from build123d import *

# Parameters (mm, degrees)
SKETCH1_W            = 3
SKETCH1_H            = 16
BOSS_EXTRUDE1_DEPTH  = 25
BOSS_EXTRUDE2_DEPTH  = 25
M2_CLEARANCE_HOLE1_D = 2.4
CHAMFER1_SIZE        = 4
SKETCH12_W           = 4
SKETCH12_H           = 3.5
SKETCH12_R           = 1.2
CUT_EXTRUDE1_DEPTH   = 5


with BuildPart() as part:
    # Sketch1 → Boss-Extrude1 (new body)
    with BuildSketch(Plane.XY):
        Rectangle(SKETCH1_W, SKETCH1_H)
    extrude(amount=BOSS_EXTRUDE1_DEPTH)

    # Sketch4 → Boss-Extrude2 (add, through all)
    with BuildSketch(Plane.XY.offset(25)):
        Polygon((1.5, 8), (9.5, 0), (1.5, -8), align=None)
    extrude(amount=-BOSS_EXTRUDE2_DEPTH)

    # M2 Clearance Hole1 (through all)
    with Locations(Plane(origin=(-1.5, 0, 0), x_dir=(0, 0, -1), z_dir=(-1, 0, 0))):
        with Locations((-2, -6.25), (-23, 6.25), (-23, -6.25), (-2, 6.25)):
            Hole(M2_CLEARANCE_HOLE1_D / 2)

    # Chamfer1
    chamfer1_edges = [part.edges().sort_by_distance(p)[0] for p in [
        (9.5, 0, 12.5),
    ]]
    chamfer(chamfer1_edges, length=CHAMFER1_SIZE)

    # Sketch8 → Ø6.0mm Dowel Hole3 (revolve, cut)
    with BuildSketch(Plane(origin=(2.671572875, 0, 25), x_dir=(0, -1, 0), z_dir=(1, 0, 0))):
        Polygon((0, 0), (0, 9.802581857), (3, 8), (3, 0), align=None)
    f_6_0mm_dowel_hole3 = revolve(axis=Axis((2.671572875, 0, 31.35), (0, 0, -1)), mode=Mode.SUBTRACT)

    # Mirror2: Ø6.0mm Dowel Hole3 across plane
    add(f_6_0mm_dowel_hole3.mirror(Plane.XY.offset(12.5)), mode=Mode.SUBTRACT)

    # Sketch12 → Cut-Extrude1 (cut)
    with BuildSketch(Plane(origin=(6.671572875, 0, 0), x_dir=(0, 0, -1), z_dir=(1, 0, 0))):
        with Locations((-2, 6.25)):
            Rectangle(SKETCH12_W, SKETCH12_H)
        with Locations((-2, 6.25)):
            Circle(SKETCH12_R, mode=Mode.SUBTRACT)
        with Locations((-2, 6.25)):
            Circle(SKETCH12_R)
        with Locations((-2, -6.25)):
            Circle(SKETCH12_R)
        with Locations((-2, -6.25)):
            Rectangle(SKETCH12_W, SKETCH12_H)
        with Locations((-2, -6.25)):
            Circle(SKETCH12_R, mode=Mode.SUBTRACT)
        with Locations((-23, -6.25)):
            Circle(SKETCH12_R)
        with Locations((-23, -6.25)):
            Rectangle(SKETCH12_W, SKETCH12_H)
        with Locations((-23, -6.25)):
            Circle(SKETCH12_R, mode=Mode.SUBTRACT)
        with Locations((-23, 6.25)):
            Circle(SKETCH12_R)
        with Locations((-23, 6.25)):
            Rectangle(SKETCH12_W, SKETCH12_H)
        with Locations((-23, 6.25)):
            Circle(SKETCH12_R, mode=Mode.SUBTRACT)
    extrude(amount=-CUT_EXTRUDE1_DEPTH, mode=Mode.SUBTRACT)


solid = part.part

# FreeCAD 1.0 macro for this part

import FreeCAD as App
import Part
import Sketcher

V = App.Vector
Q = App.Units.Quantity


def edges_at(feature, points):
    """Names of the edges that pass closest to the given points."""
    edges = feature.Shape.Edges
    near = lambda p: min(range(len(edges)), key=lambda i: edges[i].distToShape(Part.Vertex(*p))[0])
    return sorted({f"Edge{near(p) + 1}" for p in points})

doc = App.newDocument("Part")
body = doc.addObject("PartDesign::Body", "Body")

sketch1 = body.newObject("Sketcher::SketchObject", "Sketch")
sketch1.AttachmentSupport = (doc.getObject("XY_Plane"), [""])
sketch1.MapMode = "FlatFace"
sketch1.addGeometry([
    Part.LineSegment(V(-1.5, 8, 0), V(-1.5, -8, 0)),
    Part.LineSegment(V(-1.5, -8, 0), V(1.5, -8, 0)),
    Part.LineSegment(V(1.5, -8, 0), V(1.5, 8, 0)),
    Part.LineSegment(V(1.5, 8, 0), V(-1.5, 8, 0)),
], False)
sketch1.addConstraint([
    Sketcher.Constraint("Coincident", 0, 2, 1, 1),
    Sketcher.Constraint("Coincident", 1, 2, 2, 1),
    Sketcher.Constraint("Coincident", 2, 2, 3, 1),
    Sketcher.Constraint("Coincident", 3, 2, 0, 1),
    Sketcher.Constraint("Vertical", 0),
    Sketcher.Constraint("Horizontal", 1),
    Sketcher.Constraint("Vertical", 2),
    Sketcher.Constraint("Horizontal", 3),
    Sketcher.Constraint("Symmetric", 0, 2, 2, 2, -1, 1),
    Sketcher.Constraint("DistanceX", 1, 1, 1, 2, Q("3 mm")),
    Sketcher.Constraint("DistanceY", 0, 2, 0, 1, Q("16 mm")),
])
pad1 = body.newObject("PartDesign::Pad", "Pad")
pad1.Profile = sketch1
pad1.Length = 25

sketch2 = body.newObject("Sketcher::SketchObject", "Sketch001")
sketch2.AttachmentSupport = (doc.getObject("XY_Plane"), [""])
sketch2.MapMode = "FlatFace"
sketch2.AttachmentOffset = App.Placement(V(0, 0, 25), App.Rotation())
sketch2.addGeometry([
    Part.LineSegment(V(10, 0, 0), V(2, 8, 0)),
    Part.LineSegment(V(2, 8, 0), V(2, -8, 0)),
    Part.LineSegment(V(2, -8, 0), V(10, 0, 0)),
], False)
sketch2.addConstraint([
    Sketcher.Constraint("Coincident", 0, 2, 1, 1),
    Sketcher.Constraint("Coincident", 1, 2, 2, 1),
    Sketcher.Constraint("Coincident", 2, 2, 0, 1),
    Sketcher.Constraint("Vertical", 1),
    Sketcher.Constraint("PointOnObject", 2, 2, -1),
    Sketcher.Constraint("Perpendicular", 0, 2),
    Sketcher.Constraint("Equal", 0, 2),
    Sketcher.Constraint("DistanceY", 1, 2, 1, 1, Q("16 mm")),
    Sketcher.Constraint("DistanceX", -1, 1, 0, 2, Q("1.5 mm")),
])
pad2 = body.newObject("PartDesign::Pad", "Pad001")
pad2.Profile = sketch2
pad2.Length = 25
pad2.Reversed = True

sketch3 = body.newObject("Sketcher::SketchObject", "Sketch002")
sketch3.AttachmentSupport = (doc.getObject("YZ_Plane"), [""])
sketch3.MapMode = "FlatFace"
sketch3.AttachmentOffset = App.Placement(V(0, 0, -1.5), App.Rotation())
sketch3.addGeometry([
    Part.Circle(V(6.2, 2, 0), V(0, 0, 1), 1.2),
    Part.Circle(V(-6.2, 23, 0), V(0, 0, 1), 1.2),
    Part.Circle(V(6.2, 23, 0), V(0, 0, 1), 1.2),
    Part.Circle(V(-6.2, 2, 0), V(0, 0, 1), 1.2),
], False)
sketch3.addConstraint([
    Sketcher.Constraint("Equal", 0, 1),
    Sketcher.Constraint("Equal", 1, 2),
    Sketcher.Constraint("Equal", 2, 3),
    Sketcher.Constraint("Symmetric", 1, 3, 2, 3, -2),
    Sketcher.Constraint("Symmetric", 0, 3, 3, 3, -2),
    Sketcher.Constraint("Vertical", 0, 3, 2, 3),
    Sketcher.Constraint("Diameter", 0, Q("2.4 mm")),
    Sketcher.Constraint("DistanceY", -1, 1, 0, 3, Q("2 mm")),
    Sketcher.Constraint("DistanceY", -1, 1, 1, 3, Q("23 mm")),
    Sketcher.Constraint("DistanceX", 1, 3, 0, 3, Q("12.5 mm")),
])
doc.recompute()
hole = body.newObject("PartDesign::Hole", "Hole")
hole.Profile = sketch3
hole.ThreadType = "None"
hole.Diameter = 2.4
hole.DepthType = "ThroughAll"
hole.Reversed = True
doc.recompute()

chamfer = body.newObject("PartDesign::Chamfer", "Chamfer")
chamfer.Base = (hole, edges_at(hole, [(9.5, 0, 12.5)]))
chamfer.Size = 4

sketch4 = body.newObject("Sketcher::SketchObject", "Sketch003")
sketch4.AttachmentSupport = (doc.getObject("YZ_Plane"), [""])
sketch4.MapMode = "FlatFace"
sketch4.AttachmentOffset = App.Placement(V(0, 0, 2.671573), App.Rotation())
sketch4.addGeometry([
    Part.LineSegment(V(0, 15.2, 0), V(0, 25, 0)),
    Part.LineSegment(V(0, 25, 0), V(-3, 25, 0)),
    Part.LineSegment(V(-3, 25, 0), V(-3, 17, 0)),
    Part.LineSegment(V(-3, 17, 0), V(0, 15.2, 0)),
], False)
sketch4.addConstraint([
    Sketcher.Constraint("Coincident", 0, 2, 1, 1),
    Sketcher.Constraint("Coincident", 1, 2, 2, 1),
    Sketcher.Constraint("Coincident", 2, 2, 3, 1),
    Sketcher.Constraint("Coincident", 3, 2, 0, 1),
    Sketcher.Constraint("Vertical", 0),
    Sketcher.Constraint("Horizontal", 1),
    Sketcher.Constraint("Vertical", 2),
    Sketcher.Constraint("PointOnObject", 0, 2, -2),
    Sketcher.Constraint("DistanceX", 1, 2, 1, 1, Q("3 mm")),
    Sketcher.Constraint("DistanceY", 2, 2, 2, 1, Q("8 mm")),
    Sketcher.Constraint("Angle", 3, Q("-31 deg")),
    Sketcher.Constraint("DistanceY", -1, 1, 0, 2, Q("25 mm")),
])
groove = body.newObject("PartDesign::Groove", "Groove")
groove.Profile = sketch4
groove.ReferenceAxis = (sketch4, ["V_Axis"])
groove.Angle = 360
doc.recompute()

datumplane = body.newObject("PartDesign::Plane", "DatumPlane")
datumplane.AttachmentSupport = (doc.getObject("XY_Plane"), [""])
datumplane.MapMode = "FlatFace"
datumplane.AttachmentOffset = App.Placement(V(0, 0, 12.5), App.Rotation())
mirrored = body.newObject("PartDesign::Mirrored", "Mirrored")
mirrored.Originals = [groove]
mirrored.MirrorPlane = (datumplane, [""])
body.Tip = mirrored

sketch5 = body.newObject("Sketcher::SketchObject", "Sketch004")
sketch5.AttachmentSupport = (doc.getObject("YZ_Plane"), [""])
sketch5.MapMode = "FlatFace"
sketch5.AttachmentOffset = App.Placement(V(0, 0, 6.671573), App.Rotation())
sketch5.addGeometry([
    Part.LineSegment(V(8, 4, 0), V(4.5, 4, 0)),
    Part.LineSegment(V(4.5, 4, 0), V(4.5, 0, 0)),
    Part.LineSegment(V(4.5, 0, 0), V(8, 0, 0)),
    Part.LineSegment(V(8, 0, 0), V(8, 4, 0)),
    Part.LineSegment(V(-4.5, 4, 0), V(-8, 4, 0)),
    Part.LineSegment(V(-8, 4, 0), V(-8, 0, 0)),
    Part.LineSegment(V(-8, 0, 0), V(-4.5, 0, 0)),
    Part.LineSegment(V(-4.5, 0, 0), V(-4.5, 4, 0)),
    Part.Circle(V(-6.2, 2, 0), V(0, 0, 1), 1.2),
    Part.LineSegment(V(-4.5, 25, 0), V(-8, 25, 0)),
    Part.LineSegment(V(-8, 25, 0), V(-8, 21, 0)),
    Part.LineSegment(V(-8, 21, 0), V(-4.5, 21, 0)),
    Part.LineSegment(V(-4.5, 21, 0), V(-4.5, 25, 0)),
    Part.Circle(V(-6.2, 23, 0), V(0, 0, 1), 1.2),
    Part.LineSegment(V(8, 25, 0), V(4.5, 25, 0)),
    Part.LineSegment(V(4.5, 25, 0), V(4.5, 21, 0)),
    Part.LineSegment(V(4.5, 21, 0), V(8, 21, 0)),
    Part.LineSegment(V(8, 21, 0), V(8, 25, 0)),
    Part.Circle(V(6.2, 23, 0), V(0, 0, 1), 1.2),
], False)
sketch5.addConstraint([
    Sketcher.Constraint("Coincident", 0, 2, 1, 1),
    Sketcher.Constraint("Coincident", 1, 2, 2, 1),
    Sketcher.Constraint("Coincident", 2, 2, 3, 1),
    Sketcher.Constraint("Coincident", 3, 2, 0, 1),
    Sketcher.Constraint("Coincident", 4, 2, 5, 1),
    Sketcher.Constraint("Coincident", 5, 2, 6, 1),
    Sketcher.Constraint("Coincident", 6, 2, 7, 1),
    Sketcher.Constraint("Coincident", 7, 2, 4, 1),
    Sketcher.Constraint("Coincident", 9, 2, 10, 1),
    Sketcher.Constraint("Coincident", 10, 2, 11, 1),
    Sketcher.Constraint("Coincident", 11, 2, 12, 1),
    Sketcher.Constraint("Coincident", 12, 2, 9, 1),
    Sketcher.Constraint("Coincident", 14, 2, 15, 1),
    Sketcher.Constraint("Coincident", 15, 2, 16, 1),
    Sketcher.Constraint("Coincident", 16, 2, 17, 1),
    Sketcher.Constraint("Coincident", 17, 2, 14, 1),
    Sketcher.Constraint("Horizontal", 0),
    Sketcher.Constraint("Vertical", 1),
    Sketcher.Constraint("Horizontal", 2),
    Sketcher.Constraint("Vertical", 3),
    Sketcher.Constraint("Horizontal", 4),
    Sketcher.Constraint("Vertical", 5),
    Sketcher.Constraint("Horizontal", 6),
    Sketcher.Constraint("Vertical", 7),
    Sketcher.Constraint("Horizontal", 9),
    Sketcher.Constraint("Vertical", 10),
    Sketcher.Constraint("Horizontal", 11),
    Sketcher.Constraint("Vertical", 12),
    Sketcher.Constraint("Horizontal", 14),
    Sketcher.Constraint("Vertical", 15),
    Sketcher.Constraint("Horizontal", 16),
    Sketcher.Constraint("Vertical", 17),
    Sketcher.Constraint("Equal", 8, 13),
    Sketcher.Constraint("Equal", 13, 18),
    Sketcher.Constraint("Symmetric", 2, 2, 5, 2, -1, 1),
    Sketcher.Constraint("Symmetric", 13, 3, 18, 3, -2),
    Sketcher.Constraint("Symmetric", 1, 2, 6, 2, -2),
    Sketcher.Constraint("Symmetric", 12, 2, 14, 2, -2),
    Sketcher.Constraint("Symmetric", 10, 2, 16, 2, -2),
    Sketcher.Constraint("Horizontal", 3, 2, 4, 2),
    Sketcher.Constraint("Vertical", 8, 3, 13, 3),
    Sketcher.Constraint("Vertical", 5, 2, 9, 2),
    Sketcher.Constraint("Vertical", 7, 2, 11, 2),
    Sketcher.Constraint("Equal", 7, 10),
    Sketcher.Constraint("Diameter", 8, Q("2.4 mm")),
    Sketcher.Constraint("DistanceY", 1, 2, 1, 1, Q("4 mm")),
    Sketcher.Constraint("DistanceX", 0, 2, 0, 1, Q("3.5 mm")),
    Sketcher.Constraint("DistanceY", -1, 1, 8, 3, Q("2 mm")),
    Sketcher.Constraint("DistanceY", -1, 1, 13, 3, Q("23 mm")),
    Sketcher.Constraint("DistanceX", -1, 1, 2, 2, Q("8 mm")),
    Sketcher.Constraint("DistanceY", -1, 1, 9, 2, Q("25 mm")),
    Sketcher.Constraint("DistanceX", 13, 3, 18, 3, Q("12.5 mm")),
])
pocket1 = body.newObject("PartDesign::Pocket", "Pocket")
pocket1.Profile = sketch5
pocket1.Length = 5

doc.recompute()
